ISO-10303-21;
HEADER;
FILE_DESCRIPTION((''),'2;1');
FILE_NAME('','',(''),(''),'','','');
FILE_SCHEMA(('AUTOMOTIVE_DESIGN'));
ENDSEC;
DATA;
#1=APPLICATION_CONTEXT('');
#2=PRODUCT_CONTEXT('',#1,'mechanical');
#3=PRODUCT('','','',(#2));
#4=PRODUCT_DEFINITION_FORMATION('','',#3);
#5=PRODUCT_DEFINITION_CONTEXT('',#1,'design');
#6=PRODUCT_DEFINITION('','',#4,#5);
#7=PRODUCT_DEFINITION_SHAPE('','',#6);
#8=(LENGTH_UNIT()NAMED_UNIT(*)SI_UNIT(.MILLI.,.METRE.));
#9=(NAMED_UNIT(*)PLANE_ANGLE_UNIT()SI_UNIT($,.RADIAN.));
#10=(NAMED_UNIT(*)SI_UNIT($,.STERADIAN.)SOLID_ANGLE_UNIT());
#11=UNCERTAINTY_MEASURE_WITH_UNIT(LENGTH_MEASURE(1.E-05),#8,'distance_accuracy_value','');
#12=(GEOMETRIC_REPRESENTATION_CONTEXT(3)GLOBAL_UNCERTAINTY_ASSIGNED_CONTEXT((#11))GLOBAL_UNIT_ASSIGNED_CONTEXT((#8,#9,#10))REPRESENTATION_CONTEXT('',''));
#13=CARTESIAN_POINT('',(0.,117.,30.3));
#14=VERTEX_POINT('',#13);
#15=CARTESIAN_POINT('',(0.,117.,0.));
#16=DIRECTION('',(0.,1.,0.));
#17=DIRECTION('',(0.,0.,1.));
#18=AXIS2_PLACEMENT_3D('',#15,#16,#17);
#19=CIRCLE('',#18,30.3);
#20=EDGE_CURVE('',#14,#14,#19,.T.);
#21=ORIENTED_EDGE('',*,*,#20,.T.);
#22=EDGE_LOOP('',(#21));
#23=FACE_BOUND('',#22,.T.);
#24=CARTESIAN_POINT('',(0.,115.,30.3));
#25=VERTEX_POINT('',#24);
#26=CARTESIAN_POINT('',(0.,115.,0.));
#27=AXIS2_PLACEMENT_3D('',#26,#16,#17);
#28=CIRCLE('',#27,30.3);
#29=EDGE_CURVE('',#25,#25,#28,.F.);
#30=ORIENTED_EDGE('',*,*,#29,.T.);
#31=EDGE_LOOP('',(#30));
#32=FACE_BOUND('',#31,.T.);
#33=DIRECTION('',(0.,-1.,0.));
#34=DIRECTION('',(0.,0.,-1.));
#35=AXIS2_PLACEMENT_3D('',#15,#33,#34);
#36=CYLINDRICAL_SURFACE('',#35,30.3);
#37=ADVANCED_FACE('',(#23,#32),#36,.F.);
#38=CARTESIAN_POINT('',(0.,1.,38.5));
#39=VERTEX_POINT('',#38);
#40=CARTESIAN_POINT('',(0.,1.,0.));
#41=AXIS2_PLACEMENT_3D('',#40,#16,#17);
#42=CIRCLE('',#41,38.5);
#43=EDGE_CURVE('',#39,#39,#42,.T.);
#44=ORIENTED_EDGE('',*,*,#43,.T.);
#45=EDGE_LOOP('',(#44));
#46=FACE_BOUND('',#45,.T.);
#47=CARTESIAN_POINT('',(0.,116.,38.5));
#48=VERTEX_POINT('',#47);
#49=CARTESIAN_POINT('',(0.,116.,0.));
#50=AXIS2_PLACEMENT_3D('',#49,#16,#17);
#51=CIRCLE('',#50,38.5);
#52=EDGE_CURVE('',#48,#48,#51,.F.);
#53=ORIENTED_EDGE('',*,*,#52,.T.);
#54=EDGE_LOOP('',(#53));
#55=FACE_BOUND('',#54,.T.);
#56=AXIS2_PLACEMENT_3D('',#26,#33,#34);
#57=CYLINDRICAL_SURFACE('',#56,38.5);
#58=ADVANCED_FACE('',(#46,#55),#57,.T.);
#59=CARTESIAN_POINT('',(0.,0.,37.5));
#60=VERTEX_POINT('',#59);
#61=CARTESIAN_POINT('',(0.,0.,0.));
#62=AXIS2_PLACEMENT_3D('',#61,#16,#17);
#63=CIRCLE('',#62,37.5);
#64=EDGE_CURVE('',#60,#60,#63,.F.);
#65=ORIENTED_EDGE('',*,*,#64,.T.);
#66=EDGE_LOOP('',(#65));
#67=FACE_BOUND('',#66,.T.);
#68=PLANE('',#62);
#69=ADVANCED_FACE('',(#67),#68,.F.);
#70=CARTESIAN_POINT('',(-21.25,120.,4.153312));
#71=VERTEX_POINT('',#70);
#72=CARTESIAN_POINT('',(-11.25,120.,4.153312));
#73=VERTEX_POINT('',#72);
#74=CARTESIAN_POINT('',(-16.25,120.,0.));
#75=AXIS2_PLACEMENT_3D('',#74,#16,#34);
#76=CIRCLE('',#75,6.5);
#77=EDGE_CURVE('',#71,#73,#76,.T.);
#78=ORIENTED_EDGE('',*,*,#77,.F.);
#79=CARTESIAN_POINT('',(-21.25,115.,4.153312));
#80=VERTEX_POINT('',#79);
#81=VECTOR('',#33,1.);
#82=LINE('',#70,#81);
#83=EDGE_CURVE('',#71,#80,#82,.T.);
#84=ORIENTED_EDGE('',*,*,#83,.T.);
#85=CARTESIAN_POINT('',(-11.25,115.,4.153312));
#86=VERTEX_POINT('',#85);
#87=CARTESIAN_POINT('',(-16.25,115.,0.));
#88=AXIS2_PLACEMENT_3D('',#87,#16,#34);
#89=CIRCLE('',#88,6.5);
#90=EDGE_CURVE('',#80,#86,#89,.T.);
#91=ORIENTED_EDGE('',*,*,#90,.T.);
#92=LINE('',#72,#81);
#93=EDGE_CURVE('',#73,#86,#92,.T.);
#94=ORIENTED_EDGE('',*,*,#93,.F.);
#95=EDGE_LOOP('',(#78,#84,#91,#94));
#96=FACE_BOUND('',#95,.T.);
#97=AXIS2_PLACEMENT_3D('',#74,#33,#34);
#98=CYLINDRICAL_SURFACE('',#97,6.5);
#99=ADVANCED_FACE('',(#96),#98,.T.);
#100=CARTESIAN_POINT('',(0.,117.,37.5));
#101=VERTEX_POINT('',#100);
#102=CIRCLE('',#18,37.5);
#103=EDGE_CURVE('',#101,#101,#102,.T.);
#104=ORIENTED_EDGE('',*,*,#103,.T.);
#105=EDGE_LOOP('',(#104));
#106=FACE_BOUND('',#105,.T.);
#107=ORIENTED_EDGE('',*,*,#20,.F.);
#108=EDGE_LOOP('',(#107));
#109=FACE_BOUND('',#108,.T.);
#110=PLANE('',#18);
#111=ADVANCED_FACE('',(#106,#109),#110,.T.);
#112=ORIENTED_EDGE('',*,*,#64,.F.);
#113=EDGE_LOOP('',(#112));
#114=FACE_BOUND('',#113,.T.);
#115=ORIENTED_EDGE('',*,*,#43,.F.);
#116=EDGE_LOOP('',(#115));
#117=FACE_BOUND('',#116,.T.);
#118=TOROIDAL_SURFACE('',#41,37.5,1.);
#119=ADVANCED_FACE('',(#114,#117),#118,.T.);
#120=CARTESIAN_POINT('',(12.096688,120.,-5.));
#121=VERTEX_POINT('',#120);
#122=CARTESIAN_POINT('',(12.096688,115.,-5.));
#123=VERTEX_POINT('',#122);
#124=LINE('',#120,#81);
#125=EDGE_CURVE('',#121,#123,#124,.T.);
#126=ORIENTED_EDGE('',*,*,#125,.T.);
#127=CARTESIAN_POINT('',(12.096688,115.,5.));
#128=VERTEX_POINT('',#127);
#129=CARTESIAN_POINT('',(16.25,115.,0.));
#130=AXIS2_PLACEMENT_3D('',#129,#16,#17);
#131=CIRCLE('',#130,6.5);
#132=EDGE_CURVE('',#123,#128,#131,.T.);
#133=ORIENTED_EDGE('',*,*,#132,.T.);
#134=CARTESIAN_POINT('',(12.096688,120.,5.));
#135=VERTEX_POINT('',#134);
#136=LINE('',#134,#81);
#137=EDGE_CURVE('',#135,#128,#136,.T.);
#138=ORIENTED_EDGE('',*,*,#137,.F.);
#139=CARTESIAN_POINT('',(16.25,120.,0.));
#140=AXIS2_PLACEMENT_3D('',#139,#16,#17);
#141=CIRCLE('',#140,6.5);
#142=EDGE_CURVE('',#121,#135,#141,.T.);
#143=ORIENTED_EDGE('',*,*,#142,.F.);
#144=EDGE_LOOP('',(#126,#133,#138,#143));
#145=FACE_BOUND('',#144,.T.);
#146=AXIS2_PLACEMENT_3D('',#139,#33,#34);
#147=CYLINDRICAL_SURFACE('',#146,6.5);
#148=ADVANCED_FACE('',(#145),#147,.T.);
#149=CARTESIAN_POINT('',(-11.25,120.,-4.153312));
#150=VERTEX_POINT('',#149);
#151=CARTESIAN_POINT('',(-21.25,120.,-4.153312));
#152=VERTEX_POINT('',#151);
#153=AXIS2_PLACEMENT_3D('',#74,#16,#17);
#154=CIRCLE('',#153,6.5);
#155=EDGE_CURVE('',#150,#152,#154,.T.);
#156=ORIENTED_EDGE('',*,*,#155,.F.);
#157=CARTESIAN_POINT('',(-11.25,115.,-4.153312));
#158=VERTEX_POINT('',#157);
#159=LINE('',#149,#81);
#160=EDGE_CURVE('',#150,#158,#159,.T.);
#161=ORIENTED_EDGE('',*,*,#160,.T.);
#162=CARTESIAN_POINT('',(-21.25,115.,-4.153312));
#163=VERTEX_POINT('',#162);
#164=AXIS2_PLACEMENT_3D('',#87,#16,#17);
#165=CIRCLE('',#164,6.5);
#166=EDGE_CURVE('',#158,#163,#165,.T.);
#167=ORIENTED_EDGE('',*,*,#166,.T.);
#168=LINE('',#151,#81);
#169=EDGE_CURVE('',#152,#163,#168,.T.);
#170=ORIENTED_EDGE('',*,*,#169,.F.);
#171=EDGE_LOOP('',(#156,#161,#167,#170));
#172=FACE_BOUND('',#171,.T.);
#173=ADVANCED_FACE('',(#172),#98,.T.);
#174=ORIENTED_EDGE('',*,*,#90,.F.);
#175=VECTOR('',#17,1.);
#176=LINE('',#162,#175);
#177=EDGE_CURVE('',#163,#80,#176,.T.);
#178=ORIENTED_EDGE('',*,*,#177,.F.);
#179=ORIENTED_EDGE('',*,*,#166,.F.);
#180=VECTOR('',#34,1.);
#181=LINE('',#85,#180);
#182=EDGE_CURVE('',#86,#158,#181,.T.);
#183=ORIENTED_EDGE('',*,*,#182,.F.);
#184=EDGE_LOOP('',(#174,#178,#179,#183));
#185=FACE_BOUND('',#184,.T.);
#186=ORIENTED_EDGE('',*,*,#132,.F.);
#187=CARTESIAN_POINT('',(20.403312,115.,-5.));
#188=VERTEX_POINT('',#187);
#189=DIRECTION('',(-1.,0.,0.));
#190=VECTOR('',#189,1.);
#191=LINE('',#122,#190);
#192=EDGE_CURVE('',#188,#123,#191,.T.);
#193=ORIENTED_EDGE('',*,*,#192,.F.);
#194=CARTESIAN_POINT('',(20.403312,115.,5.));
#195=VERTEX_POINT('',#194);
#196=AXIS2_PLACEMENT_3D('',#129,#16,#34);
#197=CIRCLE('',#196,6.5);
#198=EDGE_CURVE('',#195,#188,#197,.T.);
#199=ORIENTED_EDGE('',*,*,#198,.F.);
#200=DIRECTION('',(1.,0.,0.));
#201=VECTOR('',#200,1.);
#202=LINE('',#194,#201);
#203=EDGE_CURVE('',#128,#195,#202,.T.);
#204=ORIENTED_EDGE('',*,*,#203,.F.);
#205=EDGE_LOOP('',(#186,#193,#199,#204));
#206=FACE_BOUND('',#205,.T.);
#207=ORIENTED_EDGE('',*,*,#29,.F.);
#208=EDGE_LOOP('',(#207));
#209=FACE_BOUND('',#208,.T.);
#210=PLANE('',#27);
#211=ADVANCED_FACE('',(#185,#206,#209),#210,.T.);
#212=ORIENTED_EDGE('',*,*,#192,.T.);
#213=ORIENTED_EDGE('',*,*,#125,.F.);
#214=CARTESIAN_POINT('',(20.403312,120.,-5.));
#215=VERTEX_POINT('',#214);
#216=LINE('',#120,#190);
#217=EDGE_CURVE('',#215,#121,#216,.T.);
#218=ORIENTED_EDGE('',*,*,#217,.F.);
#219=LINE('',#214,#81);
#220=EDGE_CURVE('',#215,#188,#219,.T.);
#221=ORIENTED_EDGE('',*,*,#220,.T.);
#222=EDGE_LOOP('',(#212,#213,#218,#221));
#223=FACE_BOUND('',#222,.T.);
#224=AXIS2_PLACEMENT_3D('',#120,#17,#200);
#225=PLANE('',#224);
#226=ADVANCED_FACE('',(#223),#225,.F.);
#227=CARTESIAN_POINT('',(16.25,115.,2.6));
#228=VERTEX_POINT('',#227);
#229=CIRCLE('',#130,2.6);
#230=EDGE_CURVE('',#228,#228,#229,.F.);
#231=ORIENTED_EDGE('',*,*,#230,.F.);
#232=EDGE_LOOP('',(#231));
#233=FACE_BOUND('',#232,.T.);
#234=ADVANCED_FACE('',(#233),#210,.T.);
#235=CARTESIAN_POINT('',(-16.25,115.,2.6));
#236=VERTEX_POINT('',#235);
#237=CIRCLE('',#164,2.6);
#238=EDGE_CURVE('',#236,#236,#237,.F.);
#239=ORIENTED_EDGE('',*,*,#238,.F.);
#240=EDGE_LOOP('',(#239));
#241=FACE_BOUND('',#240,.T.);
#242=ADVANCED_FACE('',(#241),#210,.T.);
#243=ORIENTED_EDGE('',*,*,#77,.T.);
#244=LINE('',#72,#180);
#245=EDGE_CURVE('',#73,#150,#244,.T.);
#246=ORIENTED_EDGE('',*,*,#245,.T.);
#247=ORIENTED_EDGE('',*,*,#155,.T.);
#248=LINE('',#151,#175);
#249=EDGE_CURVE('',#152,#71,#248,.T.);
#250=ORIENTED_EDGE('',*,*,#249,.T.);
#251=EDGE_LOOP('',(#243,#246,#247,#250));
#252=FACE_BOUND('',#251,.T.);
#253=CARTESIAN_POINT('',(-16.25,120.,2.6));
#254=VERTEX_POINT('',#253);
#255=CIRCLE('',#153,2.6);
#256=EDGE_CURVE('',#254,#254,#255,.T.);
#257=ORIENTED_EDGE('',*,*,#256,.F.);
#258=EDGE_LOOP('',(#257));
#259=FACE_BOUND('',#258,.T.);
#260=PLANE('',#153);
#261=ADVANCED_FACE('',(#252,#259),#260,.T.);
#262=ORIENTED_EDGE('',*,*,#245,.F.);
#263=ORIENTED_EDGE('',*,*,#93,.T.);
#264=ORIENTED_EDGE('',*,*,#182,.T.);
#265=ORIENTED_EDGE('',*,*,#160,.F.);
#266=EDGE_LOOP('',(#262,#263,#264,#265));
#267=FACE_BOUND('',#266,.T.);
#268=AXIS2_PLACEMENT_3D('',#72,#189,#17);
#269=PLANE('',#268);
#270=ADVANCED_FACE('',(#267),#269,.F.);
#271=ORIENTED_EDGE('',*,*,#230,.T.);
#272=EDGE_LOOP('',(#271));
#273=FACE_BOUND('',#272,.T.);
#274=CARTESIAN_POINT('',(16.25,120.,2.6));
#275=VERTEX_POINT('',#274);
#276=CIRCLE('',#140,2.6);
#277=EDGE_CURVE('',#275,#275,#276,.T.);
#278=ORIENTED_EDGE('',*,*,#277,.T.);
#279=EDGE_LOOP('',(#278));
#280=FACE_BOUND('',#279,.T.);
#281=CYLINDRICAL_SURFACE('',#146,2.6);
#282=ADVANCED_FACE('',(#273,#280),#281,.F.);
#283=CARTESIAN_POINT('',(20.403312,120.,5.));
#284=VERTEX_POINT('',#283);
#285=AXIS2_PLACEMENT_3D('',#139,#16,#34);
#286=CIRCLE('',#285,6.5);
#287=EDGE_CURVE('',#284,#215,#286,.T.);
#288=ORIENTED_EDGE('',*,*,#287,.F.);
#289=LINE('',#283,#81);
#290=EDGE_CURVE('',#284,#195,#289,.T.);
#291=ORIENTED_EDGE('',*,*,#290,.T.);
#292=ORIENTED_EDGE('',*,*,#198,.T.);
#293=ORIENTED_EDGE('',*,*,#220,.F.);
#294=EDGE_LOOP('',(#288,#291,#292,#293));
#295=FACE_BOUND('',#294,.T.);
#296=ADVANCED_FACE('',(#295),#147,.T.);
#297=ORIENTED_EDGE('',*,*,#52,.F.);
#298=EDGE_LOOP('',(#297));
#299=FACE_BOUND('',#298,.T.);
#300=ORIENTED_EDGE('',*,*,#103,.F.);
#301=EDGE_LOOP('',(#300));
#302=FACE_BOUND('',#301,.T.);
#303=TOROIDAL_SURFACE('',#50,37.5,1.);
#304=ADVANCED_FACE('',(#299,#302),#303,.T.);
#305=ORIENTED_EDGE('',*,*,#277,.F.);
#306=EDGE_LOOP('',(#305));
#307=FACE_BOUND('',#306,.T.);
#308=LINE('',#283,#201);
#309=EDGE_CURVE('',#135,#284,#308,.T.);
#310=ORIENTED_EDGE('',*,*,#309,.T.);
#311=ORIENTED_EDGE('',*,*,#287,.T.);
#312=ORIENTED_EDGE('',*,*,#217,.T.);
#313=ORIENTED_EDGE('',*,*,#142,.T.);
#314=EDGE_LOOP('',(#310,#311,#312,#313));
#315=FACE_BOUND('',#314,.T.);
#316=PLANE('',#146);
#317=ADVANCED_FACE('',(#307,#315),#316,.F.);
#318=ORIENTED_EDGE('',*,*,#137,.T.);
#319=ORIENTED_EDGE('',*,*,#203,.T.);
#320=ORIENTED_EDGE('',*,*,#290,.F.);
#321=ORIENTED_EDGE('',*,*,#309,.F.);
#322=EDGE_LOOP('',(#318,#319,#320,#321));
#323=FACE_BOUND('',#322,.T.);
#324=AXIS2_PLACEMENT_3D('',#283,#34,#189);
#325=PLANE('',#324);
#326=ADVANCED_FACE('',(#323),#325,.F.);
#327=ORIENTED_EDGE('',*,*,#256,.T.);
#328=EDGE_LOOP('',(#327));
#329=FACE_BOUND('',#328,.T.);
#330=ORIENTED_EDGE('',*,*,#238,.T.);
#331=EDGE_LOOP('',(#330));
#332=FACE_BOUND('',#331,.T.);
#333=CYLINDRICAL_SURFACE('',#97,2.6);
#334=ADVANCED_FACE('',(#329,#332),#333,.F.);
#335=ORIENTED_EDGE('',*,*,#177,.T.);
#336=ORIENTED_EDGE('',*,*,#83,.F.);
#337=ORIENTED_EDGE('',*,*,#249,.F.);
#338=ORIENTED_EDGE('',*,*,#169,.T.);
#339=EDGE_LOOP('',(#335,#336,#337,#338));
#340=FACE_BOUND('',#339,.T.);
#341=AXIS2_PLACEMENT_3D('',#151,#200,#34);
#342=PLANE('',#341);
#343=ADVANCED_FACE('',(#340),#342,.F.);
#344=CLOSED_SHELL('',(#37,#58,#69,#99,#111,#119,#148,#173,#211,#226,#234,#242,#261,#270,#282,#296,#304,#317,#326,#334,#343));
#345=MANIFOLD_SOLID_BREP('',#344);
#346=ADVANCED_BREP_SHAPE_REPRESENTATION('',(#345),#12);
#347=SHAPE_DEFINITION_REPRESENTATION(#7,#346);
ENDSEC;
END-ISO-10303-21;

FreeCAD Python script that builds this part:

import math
import FreeCAD as App
import Part
import Sketcher

V = App.Vector
Q = App.Units.Quantity


def edges_at(feature, points):
    """Names of the edges that pass closest to the given points."""
    edges = feature.Shape.Edges
    near = lambda p: min(range(len(edges)), key=lambda i: edges[i].distToShape(Part.Vertex(*p))[0])
    return sorted({f"Edge{near(p) + 1}" for p in points})

doc = App.newDocument("Part")
body = doc.addObject("PartDesign::Body", "Body")

# Sketch on XZ plane
sketch1 = body.newObject("Sketcher::SketchObject", "Sketch")
sketch1.AttachmentSupport = (doc.getObject("XZ_Plane"), [""])
sketch1.MapMode = "FlatFace"
sketch1.addGeometry(Part.Circle(V(0, 0, 0), V(0, 0, 1), 38), False)
sketch1.addConstraint([
    Sketcher.Constraint("Coincident", 0, 3, -1, 1),
    Sketcher.Constraint("Diameter", 0, Q("77 mm")),
])
pad1 = body.newObject("PartDesign::Pad", "Pad")
pad1.Profile = sketch1
pad1.Length = 115
pad1.Reversed = True

# Sketch on XZ plane
sketch2 = body.newObject("Sketcher::SketchObject", "Sketch001")
sketch2.AttachmentSupport = (doc.getObject("XZ_Plane"), [""])
sketch2.MapMode = "FlatFace"
sketch2.AttachmentOffset = App.Placement(V(0, 0, -115), App.Rotation())
sketch2.addGeometry([
    Part.LineSegment(V(-21.2, -4.2, 0), V(-21.2, 4.2, 0)),  # 0
    Part.ArcOfCircle(Part.Circle(V(-16.2, 0, 0), V(0, 0, 1), 6.5), math.radians(40), math.radians(140)),  # 1
    Part.LineSegment(V(-11.2, 4.2, 0), V(-11.2, -4.2, 0)),  # 2
    Part.ArcOfCircle(Part.Circle(V(-16.2, 0, 0), V(0, 0, 1), 6.5), math.radians(-140), math.radians(-40)),  # 3
    Part.Circle(V(-16.2, 0, 0), V(0, 0, 1), 2.6),  # 4
    Part.LineSegment(V(20.4, -5, 0), V(12.1, -5, 0)),  # 5
    Part.ArcOfCircle(Part.Circle(V(16.2, 0, 0), V(0, 0, 1), 6.5), math.radians(130), math.radians(230)),  # 6
    Part.LineSegment(V(12.1, 5, 0), V(20.4, 5, 0)),  # 7
    Part.ArcOfCircle(Part.Circle(V(16.3, 0, 0), V(0, 0, 1), 6.5), math.radians(-50), math.radians(50)),  # 8
    Part.Circle(V(16.2, 0, 0), V(0, 0, 1), 2.6),  # 9
], False)
sketch2.addConstraint([
    Sketcher.Constraint("Coincident", 0, 2, 1, 2),
    Sketcher.Constraint("Coincident", 1, 1, 2, 1),
    Sketcher.Constraint("Coincident", 2, 2, 3, 2),
    Sketcher.Constraint("Coincident", 3, 1, 0, 1),
    Sketcher.Constraint("Coincident", 5, 2, 6, 2),
    Sketcher.Constraint("Coincident", 6, 1, 7, 1),
    Sketcher.Constraint("Coincident", 7, 2, 8, 2),
    Sketcher.Constraint("Coincident", 8, 1, 5, 1),
    Sketcher.Constraint("Vertical", 0),
    Sketcher.Constraint("Vertical", 2),
    Sketcher.Constraint("Horizontal", 5),
    Sketcher.Constraint("Horizontal", 7),
    Sketcher.Constraint("Coincident", 3, 3, 1, 3),
    Sketcher.Constraint("Coincident", 4, 3, 1, 3),
    Sketcher.Constraint("Coincident", 8, 3, 6, 3),
    Sketcher.Constraint("Coincident", 9, 3, 6, 3),
    Sketcher.Constraint("Equal", 1, 3),
    Sketcher.Constraint("Equal", 3, 6),
    Sketcher.Constraint("Equal", 6, 8),
    Sketcher.Constraint("Equal", 4, 9),
    Sketcher.Constraint("Symmetric", 1, 3, 6, 3, -1, 1),
    Sketcher.Constraint("Symmetric", 5, 2, 6, 1, -1),
    Sketcher.Constraint("Horizontal", 0, 2, 1, 1),
    Sketcher.Constraint("Equal", 7, 0),
    Sketcher.Constraint("Diameter", 4, Q("5.2 mm")),
    Sketcher.Constraint("Radius", 1, Q("6.5 mm")),
    Sketcher.Constraint("DistanceY", 5, 2, -1, 1, Q("5 mm")),
    Sketcher.Constraint("DistanceX", 1, 3, 6, 3, Q("32.5 mm")),
])
pad2 = body.newObject("PartDesign::Pad", "Pad001")
pad2.Profile = sketch2
pad2.Length = 5
pad2.Reversed = True

# Sketch on XZ plane
sketch3 = body.newObject("Sketcher::SketchObject", "Sketch002")
sketch3.AttachmentSupport = (doc.getObject("XZ_Plane"), [""])
sketch3.MapMode = "FlatFace"
sketch3.AttachmentOffset = App.Placement(V(0, 0, -115), App.Rotation())
sketch3.addGeometry([
    Part.Circle(V(0, 0, 0), V(0, 0, 1), 38),
    Part.Circle(V(0, 0, 0), V(0, 0, 1), 30),
], False)
sketch3.addConstraint([
    Sketcher.Constraint("Coincident", 0, 3, -1, 1),
    Sketcher.Constraint("Coincident", 1, 3, -1, 1),
    Sketcher.Constraint("Diameter", 0, Q("77 mm")),
    Sketcher.Constraint("Diameter", 1, Q("60.6 mm")),
])
pad3 = body.newObject("PartDesign::Pad", "Pad002")
pad3.Profile = sketch3
pad3.Length = 2
pad3.Reversed = True
doc.recompute()

fillet = body.newObject("PartDesign::Fillet", "Fillet")
fillet.Base = (pad3, edges_at(pad3, [(0, 0, -38.5), (0, 117, -38.5)]))
fillet.Radius = 1

doc.recompute()
